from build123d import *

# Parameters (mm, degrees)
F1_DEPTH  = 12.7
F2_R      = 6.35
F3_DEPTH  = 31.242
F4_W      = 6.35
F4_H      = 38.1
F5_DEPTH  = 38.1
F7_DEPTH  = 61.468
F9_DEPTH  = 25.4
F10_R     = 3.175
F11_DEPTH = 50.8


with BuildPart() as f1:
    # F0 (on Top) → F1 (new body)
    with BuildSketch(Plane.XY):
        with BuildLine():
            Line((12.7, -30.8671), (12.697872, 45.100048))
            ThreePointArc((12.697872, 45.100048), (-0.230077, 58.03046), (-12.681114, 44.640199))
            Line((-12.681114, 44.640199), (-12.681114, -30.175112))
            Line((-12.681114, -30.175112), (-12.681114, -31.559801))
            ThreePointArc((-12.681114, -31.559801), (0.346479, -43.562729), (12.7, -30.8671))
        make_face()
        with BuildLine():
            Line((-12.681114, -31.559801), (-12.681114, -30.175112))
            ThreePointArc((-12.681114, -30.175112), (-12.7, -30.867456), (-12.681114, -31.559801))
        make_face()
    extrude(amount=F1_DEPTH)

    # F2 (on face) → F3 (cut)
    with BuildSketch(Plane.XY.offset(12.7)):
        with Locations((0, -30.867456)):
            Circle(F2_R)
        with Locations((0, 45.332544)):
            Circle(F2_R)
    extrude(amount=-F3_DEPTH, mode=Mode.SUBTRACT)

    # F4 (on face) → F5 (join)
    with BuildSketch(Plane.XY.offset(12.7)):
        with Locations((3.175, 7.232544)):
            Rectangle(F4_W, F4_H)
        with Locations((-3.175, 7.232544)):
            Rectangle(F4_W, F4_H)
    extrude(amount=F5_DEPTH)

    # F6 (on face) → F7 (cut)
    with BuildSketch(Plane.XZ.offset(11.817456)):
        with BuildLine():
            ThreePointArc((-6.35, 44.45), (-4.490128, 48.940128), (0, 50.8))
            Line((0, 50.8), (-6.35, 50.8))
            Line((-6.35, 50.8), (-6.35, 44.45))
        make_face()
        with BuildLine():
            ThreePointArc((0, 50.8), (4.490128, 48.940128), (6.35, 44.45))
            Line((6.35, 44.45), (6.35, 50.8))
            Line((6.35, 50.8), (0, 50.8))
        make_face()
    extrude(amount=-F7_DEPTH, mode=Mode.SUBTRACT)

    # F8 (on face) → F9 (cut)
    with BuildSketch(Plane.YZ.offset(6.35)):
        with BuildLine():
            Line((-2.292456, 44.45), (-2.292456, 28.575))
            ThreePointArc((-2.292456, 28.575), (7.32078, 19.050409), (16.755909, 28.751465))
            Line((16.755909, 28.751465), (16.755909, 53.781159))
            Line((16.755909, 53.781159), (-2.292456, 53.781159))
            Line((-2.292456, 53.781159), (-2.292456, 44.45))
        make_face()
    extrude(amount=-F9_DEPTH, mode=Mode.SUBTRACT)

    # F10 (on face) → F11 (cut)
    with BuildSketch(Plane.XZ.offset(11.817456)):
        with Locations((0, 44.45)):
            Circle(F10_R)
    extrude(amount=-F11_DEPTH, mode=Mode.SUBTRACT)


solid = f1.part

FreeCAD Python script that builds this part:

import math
import FreeCAD as App
import Part
import Sketcher
Q = App.Units.Quantity

doc = App.newDocument("Part")
params = doc.addObject("Spreadsheet::Sheet", "Params")
for row, (alias, value) in enumerate([
    ("sketch1_radius", "0.5 in"),
    ("sketch1_radius2", "0.5 in"),
    ("pad1_length", "0.5 in"),
    ("sketch2_diameter", "0.5 in"),
    ("pocket1_length", "1.23 in"),
    ("sketch3_width", "0.5 in"),
    ("sketch3_height", "1.5 in"),
    ("pad2_length", "1.5 in"),
    ("sketch4_radius", "0.25 in"),
    ("pocket2_length", "2.42 in"),
    ("sketch5_radius", "0.375 in"),
    ("pocket3_length", "1 in"),
    ("sketch6_diameter", "0.25 in"),
    ("pocket4_length", "2 in"),
], start=1):
    params.set(f"A{row}", alias)
    params.set(f"B{row}", "=" + value)
    params.setAlias(f"B{row}", alias)

body = doc.addObject("PartDesign::Body", "Body")

sketch1 = body.newObject("Sketcher::SketchObject", "Sketch")
sketch1.AttachmentSupport = (doc.getObject("XY_Plane"), [""])
sketch1.MapMode = "FlatFace"
sketch1.addGeometry(Part.LineSegment(App.Vector(12.7, -30.8671, 0), App.Vector(12.697872, 45.100048, 0)), False)
sketch1.addGeometry(Part.ArcOfCircle(Part.Circle(App.Vector(0, 45.332544, 0), App.Vector(0, 0, 1), 12.7), math.radians(-1.04896), math.radians(183.12505)), False)
sketch1.addGeometry(Part.LineSegment(App.Vector(-12.681114, 44.640199, 0), App.Vector(-12.681114, -30.175112, 0)), False)
sketch1.addGeometry(Part.ArcOfCircle(Part.Circle(App.Vector(-0.00018, -30.867456, 0), App.Vector(0, 0, 1), 12.69982), math.radians(176.874909), math.radians(183.125091)), False)
sketch1.addGeometry(Part.ArcOfCircle(Part.Circle(App.Vector(0, -30.867456, 0), App.Vector(0, 0, 1), 12.7), math.radians(-176.874952), math.radians(0.001607)), False)
sketch1.addConstraint(Sketcher.Constraint("Coincident", 0, 2, 1, 1))
sketch1.addConstraint(Sketcher.Constraint("Coincident", 1, 2, 2, 1))
sketch1.addConstraint(Sketcher.Constraint("Coincident", 2, 2, 3, 1))
sketch1.addConstraint(Sketcher.Constraint("Coincident", 3, 2, 4, 1))
sketch1.addConstraint(Sketcher.Constraint("Coincident", 4, 2, 0, 1))
sketch1.addConstraint(Sketcher.Constraint("Vertical", 2))
sketch1.addConstraint(Sketcher.Constraint("PointOnObject", 1, 3, -2))
sketch1.addConstraint(Sketcher.Constraint("PointOnObject", 4, 3, -2))
sketch1.addConstraint(Sketcher.Constraint("Radius", 1, Q("0.5 in")))
sketch1.addConstraint(Sketcher.Constraint("Radius", 4, Q("0.5 in")))
sketch1.addConstraint(Sketcher.Constraint("DistanceY", 3, 3, 1, 3, Q("3 in")))
sketch1.addConstraint(Sketcher.Constraint("DistanceY", 4, 3, 1, 3, Q("3 in")))
sketch1.addConstraint(Sketcher.Constraint("DistanceY", 3, 2, 1, 2, Q("3 in")))
sketch1.addConstraint(Sketcher.Constraint("Radius", 3, Q("12.69982 mm")))
sketch1.addConstraint(Sketcher.Constraint("DistanceY", 2, 2, 2, 1, Q("74.815311 mm")))
sketch1.addConstraint(Sketcher.Constraint("DistanceY", -1, 1, 1, 2, Q("44.640199 mm")))
sketch1.addConstraint(Sketcher.Constraint("DistanceY", 4, 2, -1, 1, Q("30.8671 mm")))
sketch1.addConstraint(Sketcher.Constraint("Distance", 0, Q("75.967148 mm")))
sketch1.setExpression("Constraints[8]", "Params.sketch1_radius")
sketch1.setExpression("Constraints[9]", "Params.sketch1_radius2")
pad1 = body.newObject("PartDesign::Pad", "Pad")
pad1.Profile = sketch1
pad1.setExpression("Length", "Params.pad1_length")

sketch2 = body.newObject("Sketcher::SketchObject", "Sketch001")
sketch2.AttachmentSupport = (doc.getObject("XY_Plane"), [""])
sketch2.MapMode = "FlatFace"
sketch2.AttachmentOffset = App.Placement(App.Vector(0, 0, 0.5 * 25.4), App.Rotation())
sketch2.addGeometry(Part.Circle(App.Vector(0, -30.867456, 0), App.Vector(0, 0, 1), 6.35), False)
sketch2.addGeometry(Part.Circle(App.Vector(0, 45.332544, 0), App.Vector(0, 0, 1), 6.35), False)
sketch2.addConstraint(Sketcher.Constraint("Equal", 0, 1))
sketch2.addConstraint(Sketcher.Constraint("PointOnObject", 0, 3, -2))
sketch2.addConstraint(Sketcher.Constraint("PointOnObject", 1, 3, -2))
sketch2.addConstraint(Sketcher.Constraint("Diameter", 0, Q("0.5 in")))
sketch2.addConstraint(Sketcher.Constraint("DistanceY", 0, 3, 1, 3, Q("3 in")))
sketch2.addConstraint(Sketcher.Constraint("DistanceY", 0, 3, -1, 1, Q("30.867456 mm")))
sketch2.setExpression("Constraints[3]", "Params.sketch2_diameter")
pocket1 = body.newObject("PartDesign::Pocket", "Pocket")
pocket1.Profile = sketch2
pocket1.setExpression("Length", "Params.pocket1_length")

sketch3 = body.newObject("Sketcher::SketchObject", "Sketch002")
sketch3.AttachmentSupport = (doc.getObject("XY_Plane"), [""])
sketch3.MapMode = "FlatFace"
sketch3.AttachmentOffset = App.Placement(App.Vector(0, 0, 0.5 * 25.4), App.Rotation())
sketch3.addGeometry(Part.LineSegment(App.Vector(6.35, -11.817456, 0), App.Vector(6.35, 26.282544, 0)), False)
sketch3.addGeometry(Part.LineSegment(App.Vector(6.35, 26.282544, 0), App.Vector(-6.35, 26.282544, 0)), False)
sketch3.addGeometry(Part.LineSegment(App.Vector(-6.35, 26.282544, 0), App.Vector(-6.35, -11.817456, 0)), False)
sketch3.addGeometry(Part.LineSegment(App.Vector(-6.35, -11.817456, 0), App.Vector(6.35, -11.817456, 0)), False)
sketch3.addConstraint(Sketcher.Constraint("Coincident", 0, 2, 1, 1))
sketch3.addConstraint(Sketcher.Constraint("Coincident", 1, 2, 2, 1))
sketch3.addConstraint(Sketcher.Constraint("Coincident", 2, 2, 3, 1))
sketch3.addConstraint(Sketcher.Constraint("Coincident", 3, 2, 0, 1))
sketch3.addConstraint(Sketcher.Constraint("Vertical", 0))
sketch3.addConstraint(Sketcher.Constraint("Horizontal", 1))
sketch3.addConstraint(Sketcher.Constraint("Vertical", 2))
sketch3.addConstraint(Sketcher.Constraint("Horizontal", 3))
sketch3.addConstraint(Sketcher.Constraint("DistanceX", 1, 2, 1, 1, Q("0.5 in")))
sketch3.addConstraint(Sketcher.Constraint("DistanceY", 0, 1, 0, 2, Q("1.5 in")))
sketch3.addConstraint(Sketcher.Constraint("DistanceX", -1, 1, 0, 2, Q("0.25 in")))
sketch3.addConstraint(Sketcher.Constraint("DistanceY", -1, 1, 0, 2, Q("26.282544 mm")))
sketch3.setExpression("Constraints[8]", "Params.sketch3_width")
sketch3.setExpression("Constraints[9]", "Params.sketch3_height")
pad2 = body.newObject("PartDesign::Pad", "Pad001")
pad2.Profile = sketch3
pad2.setExpression("Length", "Params.pad2_length")

sketch4 = body.newObject("Sketcher::SketchObject", "Sketch003")
sketch4.AttachmentSupport = (doc.getObject("XZ_Plane"), [""])
sketch4.MapMode = "FlatFace"
sketch4.AttachmentOffset = App.Placement(App.Vector(0, 0, 11.817456), App.Rotation())
sketch4.addGeometry(Part.ArcOfCircle(Part.Circle(App.Vector(0, 44.45, 0), App.Vector(0, 0, 1), 6.35), math.radians(90.000002), math.radians(179.999998)), False)
sketch4.addGeometry(Part.LineSegment(App.Vector(0, 50.8, 0), App.Vector(-6.35, 50.8, 0)), False)
sketch4.addGeometry(Part.LineSegment(App.Vector(-6.35, 50.8, 0), App.Vector(-6.35, 44.45, 0)), False)
sketch4.addGeometry(Part.ArcOfCircle(Part.Circle(App.Vector(0, 44.45, 0), App.Vector(0, 0, 1), 6.35), math.radians(0.000002), math.radians(89.999998)), False)
sketch4.addGeometry(Part.LineSegment(App.Vector(6.35, 44.45, 0), App.Vector(6.35, 50.8, 0)), False)
sketch4.addGeometry(Part.LineSegment(App.Vector(6.35, 50.8, 0), App.Vector(0, 50.8, 0)), False)
sketch4.addConstraint(Sketcher.Constraint("Tangent", 0, 1, 1, 1))
sketch4.addConstraint(Sketcher.Constraint("Coincident", 1, 2, 2, 1))
sketch4.addConstraint(Sketcher.Constraint("Tangent", 2, 2, 0, 2))
sketch4.addConstraint(Sketcher.Constraint("Tangent", 3, 1, 4, 1))
sketch4.addConstraint(Sketcher.Constraint("Coincident", 4, 2, 5, 1))
sketch4.addConstraint(Sketcher.Constraint("Tangent", 5, 2, 3, 2))
sketch4.addConstraint(Sketcher.Constraint("Horizontal", 1))
sketch4.addConstraint(Sketcher.Constraint("Vertical", 2))
sketch4.addConstraint(Sketcher.Constraint("Vertical", 4))
sketch4.addConstraint(Sketcher.Constraint("Horizontal", 5))
sketch4.addConstraint(Sketcher.Constraint("Coincident", 3, 3, 0, 3))
sketch4.addConstraint(Sketcher.Constraint("Equal", 0, 3))
sketch4.addConstraint(Sketcher.Constraint("PointOnObject", 0, 3, -2))
sketch4.addConstraint(Sketcher.Constraint("Radius", 0, Q("0.25 in")))
sketch4.addConstraint(Sketcher.Constraint("DistanceY", -1, 1, 0, 1, Q("2 in")))
sketch4.setExpression("Constraints[13]", "Params.sketch4_radius")
pocket2 = body.newObject("PartDesign::Pocket", "Pocket001")
pocket2.Profile = sketch4
pocket2.setExpression("Length", "Params.pocket2_length")

sketch5 = body.newObject("Sketcher::SketchObject", "Sketch004")
sketch5.AttachmentSupport = (doc.getObject("YZ_Plane"), [""])
sketch5.MapMode = "FlatFace"
sketch5.AttachmentOffset = App.Placement(App.Vector(0, 0, 0.25 * 25.4), App.Rotation())
sketch5.addGeometry(Part.ArcOfCircle(Part.Circle(App.Vector(7.232544, 28.575, 0), App.Vector(0, 0, 1), 9.525), math.radians(-179.999999), math.radians(1.06155)), False)
sketch5.addGeometry(Part.LineSegment(App.Vector(16.755909, 28.751465, 0), App.Vector(16.755909, 53.781159, 0)), False)
sketch5.addGeometry(Part.LineSegment(App.Vector(16.755909, 53.781159, 0), App.Vector(-2.292456, 53.781159, 0)), False)
sketch5.addGeometry(Part.LineSegment(App.Vector(-2.292456, 53.781159, 0), App.Vector(-2.292456, 28.575, 0)), False)
sketch5.addConstraint(Sketcher.Constraint("Coincident", 0, 2, 1, 1))
sketch5.addConstraint(Sketcher.Constraint("Coincident", 1, 2, 2, 1))
sketch5.addConstraint(Sketcher.Constraint("Coincident", 2, 2, 3, 1))
sketch5.addConstraint(Sketcher.Constraint("Tangent", 3, 2, 0, 1))
sketch5.addConstraint(Sketcher.Constraint("Vertical", 1))
sketch5.addConstraint(Sketcher.Constraint("Horizontal", 2))
sketch5.addConstraint(Sketcher.Constraint("Vertical", 3))
sketch5.addConstraint(Sketcher.Constraint("Radius", 0, Q("0.375 in")))
sketch5.addConstraint(Sketcher.Constraint("DistanceY", -1, 1, 0, 3, Q("1.125 in")))
sketch5.addConstraint(Sketcher.Constraint("DistanceY", 3, 2, 3, 1, Q("25.206159 mm")))
sketch5.addConstraint(Sketcher.Constraint("DistanceX", 2, 2, 2, 1, Q("19.048365 mm")))
sketch5.addConstraint(Sketcher.Constraint("DistanceX", -1, 1, 0, 2, Q("16.755909 mm")))
sketch5.setExpression("Constraints[7]", "Params.sketch5_radius")
pocket3 = body.newObject("PartDesign::Pocket", "Pocket002")
pocket3.Profile = sketch5
pocket3.setExpression("Length", "Params.pocket3_length")

sketch6 = body.newObject("Sketcher::SketchObject", "Sketch005")
sketch6.AttachmentSupport = (doc.getObject("XZ_Plane"), [""])
sketch6.MapMode = "FlatFace"
sketch6.AttachmentOffset = App.Placement(App.Vector(0, 0, 11.817456), App.Rotation())
sketch6.addGeometry(Part.Circle(App.Vector(0, 44.45, 0), App.Vector(0, 0, 1), 3.175), False)
sketch6.addConstraint(Sketcher.Constraint("PointOnObject", 0, 3, -2))
sketch6.addConstraint(Sketcher.Constraint("Diameter", 0, Q("0.25 in")))
sketch6.addConstraint(Sketcher.Constraint("DistanceY", -1, 1, 0, 3, Q("1.75 in")))
sketch6.setExpression("Constraints[1]", "Params.sketch6_diameter")
pocket4 = body.newObject("PartDesign::Pocket", "Pocket003")
pocket4.Profile = sketch6
pocket4.setExpression("Length", "Params.pocket4_length")

doc.recompute()
